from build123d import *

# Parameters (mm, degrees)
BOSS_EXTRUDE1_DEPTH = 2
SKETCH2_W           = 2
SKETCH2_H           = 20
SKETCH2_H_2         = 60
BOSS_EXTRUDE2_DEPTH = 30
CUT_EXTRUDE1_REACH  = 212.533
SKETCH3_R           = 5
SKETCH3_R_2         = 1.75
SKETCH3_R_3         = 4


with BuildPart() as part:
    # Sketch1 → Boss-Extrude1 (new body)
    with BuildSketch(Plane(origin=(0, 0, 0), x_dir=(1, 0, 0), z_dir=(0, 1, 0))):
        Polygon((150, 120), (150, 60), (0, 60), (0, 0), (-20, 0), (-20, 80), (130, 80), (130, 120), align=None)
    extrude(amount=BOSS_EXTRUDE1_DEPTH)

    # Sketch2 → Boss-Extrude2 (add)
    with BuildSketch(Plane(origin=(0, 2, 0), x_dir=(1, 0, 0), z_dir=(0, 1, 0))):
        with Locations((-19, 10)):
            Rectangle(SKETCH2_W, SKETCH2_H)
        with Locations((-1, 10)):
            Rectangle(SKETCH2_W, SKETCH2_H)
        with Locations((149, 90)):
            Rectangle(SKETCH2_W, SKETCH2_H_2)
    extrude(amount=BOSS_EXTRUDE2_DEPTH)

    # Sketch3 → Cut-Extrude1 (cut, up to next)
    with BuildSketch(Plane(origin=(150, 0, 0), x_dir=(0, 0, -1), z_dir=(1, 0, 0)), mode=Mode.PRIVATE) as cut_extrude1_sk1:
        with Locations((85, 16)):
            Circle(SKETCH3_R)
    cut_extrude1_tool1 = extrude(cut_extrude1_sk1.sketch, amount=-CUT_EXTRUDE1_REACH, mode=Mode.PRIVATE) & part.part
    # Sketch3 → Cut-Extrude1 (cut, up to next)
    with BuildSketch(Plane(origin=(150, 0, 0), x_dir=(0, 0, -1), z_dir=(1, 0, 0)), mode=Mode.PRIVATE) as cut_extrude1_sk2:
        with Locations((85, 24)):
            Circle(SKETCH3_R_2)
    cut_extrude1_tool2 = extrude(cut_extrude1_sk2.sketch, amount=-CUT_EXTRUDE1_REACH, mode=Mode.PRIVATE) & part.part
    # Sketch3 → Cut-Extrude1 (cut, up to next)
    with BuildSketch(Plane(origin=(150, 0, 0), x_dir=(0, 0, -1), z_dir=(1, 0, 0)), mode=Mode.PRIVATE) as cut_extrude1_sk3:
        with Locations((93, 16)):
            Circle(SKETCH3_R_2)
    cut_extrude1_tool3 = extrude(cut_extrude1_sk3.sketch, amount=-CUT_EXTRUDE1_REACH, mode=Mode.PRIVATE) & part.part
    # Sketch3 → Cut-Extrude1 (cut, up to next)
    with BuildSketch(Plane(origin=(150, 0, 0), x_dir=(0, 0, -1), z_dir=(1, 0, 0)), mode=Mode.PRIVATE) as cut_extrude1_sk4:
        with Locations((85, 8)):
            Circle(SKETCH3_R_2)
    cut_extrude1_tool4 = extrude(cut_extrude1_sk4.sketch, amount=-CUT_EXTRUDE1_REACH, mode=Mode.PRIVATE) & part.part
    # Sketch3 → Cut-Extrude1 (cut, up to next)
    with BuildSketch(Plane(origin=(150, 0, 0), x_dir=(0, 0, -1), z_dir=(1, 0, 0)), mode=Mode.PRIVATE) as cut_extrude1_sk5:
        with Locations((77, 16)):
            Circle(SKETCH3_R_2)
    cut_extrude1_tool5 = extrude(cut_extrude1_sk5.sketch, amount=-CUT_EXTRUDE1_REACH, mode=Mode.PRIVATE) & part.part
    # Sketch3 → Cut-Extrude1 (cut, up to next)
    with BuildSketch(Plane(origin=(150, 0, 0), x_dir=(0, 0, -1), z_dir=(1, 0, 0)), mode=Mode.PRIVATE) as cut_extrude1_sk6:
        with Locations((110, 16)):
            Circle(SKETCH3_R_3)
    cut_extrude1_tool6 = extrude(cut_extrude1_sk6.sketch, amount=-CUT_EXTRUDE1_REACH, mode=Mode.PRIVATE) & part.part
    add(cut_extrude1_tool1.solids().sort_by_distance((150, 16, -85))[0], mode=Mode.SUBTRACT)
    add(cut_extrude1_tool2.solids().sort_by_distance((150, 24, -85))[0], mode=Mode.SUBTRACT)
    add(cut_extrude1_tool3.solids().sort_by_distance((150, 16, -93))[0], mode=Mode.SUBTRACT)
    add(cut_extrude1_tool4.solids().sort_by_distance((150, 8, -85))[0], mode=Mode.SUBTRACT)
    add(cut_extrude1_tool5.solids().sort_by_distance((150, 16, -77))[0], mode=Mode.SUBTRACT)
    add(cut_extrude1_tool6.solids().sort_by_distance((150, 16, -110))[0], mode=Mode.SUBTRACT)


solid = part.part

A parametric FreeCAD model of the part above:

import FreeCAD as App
import Part
import Sketcher

V = App.Vector
Q = App.Units.Quantity

doc = App.newDocument("Part")
body = doc.addObject("PartDesign::Body", "Body")

# Sketch on XZ plane
sketch1 = body.newObject("Sketcher::SketchObject", "Sketch")
sketch1.AttachmentSupport = (doc.getObject("XZ_Plane"), [""])
sketch1.MapMode = "FlatFace"
sketch1.addGeometry([
    Part.LineSegment(V(150, -60, 0), V(150, -120, 0)),  # 0
    Part.LineSegment(V(150, -120, 0), V(130, -120, 0)),  # 1
    Part.LineSegment(V(130, -120, 0), V(130, -80, 0)),  # 2
    Part.LineSegment(V(130, -80, 0), V(-20, -80, 0)),  # 3
    Part.LineSegment(V(-20, -80, 0), V(-20, 0, 0)),  # 4
    Part.LineSegment(V(-20, 0, 0), V(0, 0, 0)),  # 5
    Part.LineSegment(V(0, 0, 0), V(0, -60, 0)),  # 6
    Part.LineSegment(V(0, -60, 0), V(150, -60, 0)),  # 7
], False)
sketch1.addConstraint([
    Sketcher.Constraint("Coincident", 0, 2, 1, 1),
    Sketcher.Constraint("Coincident", 1, 2, 2, 1),
    Sketcher.Constraint("Coincident", 2, 2, 3, 1),
    Sketcher.Constraint("Coincident", 3, 2, 4, 1),
    Sketcher.Constraint("Coincident", 4, 2, 5, 1),
    Sketcher.Constraint("Coincident", 5, 2, 6, 1),
    Sketcher.Constraint("Coincident", 6, 2, 7, 1),
    Sketcher.Constraint("Coincident", 7, 2, 0, 1),
    Sketcher.Constraint("Vertical", 0),
    Sketcher.Constraint("Horizontal", 1),
    Sketcher.Constraint("Vertical", 2),
    Sketcher.Constraint("Horizontal", 3),
    Sketcher.Constraint("Vertical", 4),
    Sketcher.Constraint("Horizontal", 5),
    Sketcher.Constraint("Vertical", 6),
    Sketcher.Constraint("Horizontal", 7),
    Sketcher.Constraint("Coincident", 5, 2, -1, 1),
    Sketcher.Constraint("Equal", 1, 5),
    Sketcher.Constraint("Equal", 0, 6),
    Sketcher.Constraint("DistanceX", 1, 2, 1, 1, Q("20 mm")),
    Sketcher.Constraint("DistanceX", 3, 2, 3, 1, Q("150 mm")),
    Sketcher.Constraint("DistanceY", 0, 2, 0, 1, Q("60 mm")),
    Sketcher.Constraint("DistanceY", 2, 1, 2, 2, Q("40 mm")),
])
pad1 = body.newObject("PartDesign::Pad", "Pad")
pad1.Profile = sketch1
pad1.Length = 2
pad1.Reversed = True

# Sketch on XZ plane
sketch2 = body.newObject("Sketcher::SketchObject", "Sketch001")
sketch2.AttachmentSupport = (doc.getObject("XZ_Plane"), [""])
sketch2.MapMode = "FlatFace"
sketch2.AttachmentOffset = App.Placement(V(0, 0, -2), App.Rotation())
sketch2.addGeometry([
    Part.LineSegment(V(-20, -20, 0), V(-20, 0, 0)),  # 0
    Part.LineSegment(V(-20, 0, 0), V(-18, 0, 0)),  # 1
    Part.LineSegment(V(-18, 0, 0), V(-18, -20, 0)),  # 2
    Part.LineSegment(V(-18, -20, 0), V(-20, -20, 0)),  # 3
    Part.LineSegment(V(-2, -20, 0), V(-2, 0, 0)),  # 4
    Part.LineSegment(V(-2, 0, 0), V(0, 0, 0)),  # 5
    Part.LineSegment(V(0, 0, 0), V(0, -20, 0)),  # 6
    Part.LineSegment(V(0, -20, 0), V(-2, -20, 0)),  # 7
    Part.LineSegment(V(148, -120, 0), V(148, -60, 0)),  # 8
    Part.LineSegment(V(148, -60, 0), V(150, -60, 0)),  # 9
    Part.LineSegment(V(150, -60, 0), V(150, -120, 0)),  # 10
    Part.LineSegment(V(150, -120, 0), V(148, -120, 0)),  # 11
], False)
sketch2.addConstraint([
    Sketcher.Constraint("Coincident", 0, 2, 1, 1),
    Sketcher.Constraint("Coincident", 1, 2, 2, 1),
    Sketcher.Constraint("Coincident", 2, 2, 3, 1),
    Sketcher.Constraint("Coincident", 3, 2, 0, 1),
    Sketcher.Constraint("Coincident", 4, 2, 5, 1),
    Sketcher.Constraint("Coincident", 5, 2, 6, 1),
    Sketcher.Constraint("Coincident", 6, 2, 7, 1),
    Sketcher.Constraint("Coincident", 7, 2, 4, 1),
    Sketcher.Constraint("Coincident", 8, 2, 9, 1),
    Sketcher.Constraint("Coincident", 9, 2, 10, 1),
    Sketcher.Constraint("Coincident", 10, 2, 11, 1),
    Sketcher.Constraint("Coincident", 11, 2, 8, 1),
    Sketcher.Constraint("Vertical", 0),
    Sketcher.Constraint("Horizontal", 1),
    Sketcher.Constraint("Vertical", 2),
    Sketcher.Constraint("Horizontal", 3),
    Sketcher.Constraint("Vertical", 4),
    Sketcher.Constraint("Horizontal", 5),
    Sketcher.Constraint("Vertical", 6),
    Sketcher.Constraint("Horizontal", 7),
    Sketcher.Constraint("Vertical", 8),
    Sketcher.Constraint("Horizontal", 9),
    Sketcher.Constraint("Vertical", 10),
    Sketcher.Constraint("Horizontal", 11),
    Sketcher.Constraint("Coincident", 5, 2, -1, 1),
    Sketcher.Constraint("PointOnObject", 0, 2, -1),
    Sketcher.Constraint("Horizontal", 3, 2, 6, 2),
    Sketcher.Constraint("Equal", 3, 5),
    Sketcher.Constraint("Equal", 7, 9),
    Sketcher.Constraint("DistanceX", 1, 1, 1, 2, Q("2 mm")),
    Sketcher.Constraint("DistanceY", 0, 1, 0, 2, Q("20 mm")),
    Sketcher.Constraint("DistanceY", 8, 1, 8, 2, Q("60 mm")),
    Sketcher.Constraint("DistanceX", 0, 2, -1, 1, Q("20 mm")),
    Sketcher.Constraint("DistanceX", -1, 1, 8, 2, Q("148 mm")),
    Sketcher.Constraint("DistanceY", 8, 2, -1, 1, Q("60 mm")),
])
pad2 = body.newObject("PartDesign::Pad", "Pad001")
pad2.Profile = sketch2
pad2.Length = 30
pad2.Reversed = True

# Sketch on YZ plane
sketch3 = body.newObject("Sketcher::SketchObject", "Sketch002")
sketch3.AttachmentSupport = (doc.getObject("YZ_Plane"), [""])
sketch3.MapMode = "FlatFace"
sketch3.AttachmentOffset = App.Placement(V(0, 0, 150), App.Rotation())
sketch3.addGeometry(Part.Circle(V(16, -85, 0), V(0, 0, 1), 5), False)
sketch3.addConstraint([
    Sketcher.Constraint("Diameter", 0, Q("10 mm")),
    Sketcher.Constraint("DistanceX", -1, 1, 0, 3, Q("16 mm")),
    Sketcher.Constraint("DistanceY", 0, 3, -1, 1, Q("85 mm")),
])
pocket1 = body.newObject("PartDesign::Pocket", "Pocket")
pocket1.Profile = sketch3
pocket1.Type = "UpToFirst"

# Sketch on YZ plane
sketch4 = body.newObject("Sketcher::SketchObject", "Sketch003")
sketch4.AttachmentSupport = (doc.getObject("YZ_Plane"), [""])
sketch4.MapMode = "FlatFace"
sketch4.AttachmentOffset = App.Placement(V(0, 0, 150), App.Rotation())
sketch4.addGeometry(Part.Circle(V(24, -85, 0), V(0, 0, 1), 1.75), False)
sketch4.addConstraint([
    Sketcher.Constraint("Diameter", 0, Q("3.5 mm")),
    Sketcher.Constraint("DistanceX", -1, 1, 0, 3, Q("24 mm")),
    Sketcher.Constraint("DistanceY", 0, 3, -1, 1, Q("85 mm")),
])
pocket2 = body.newObject("PartDesign::Pocket", "Pocket001")
pocket2.Profile = sketch4
pocket2.Type = "UpToFirst"

# Sketch on YZ plane
sketch5 = body.newObject("Sketcher::SketchObject", "Sketch004")
sketch5.AttachmentSupport = (doc.getObject("YZ_Plane"), [""])
sketch5.MapMode = "FlatFace"
sketch5.AttachmentOffset = App.Placement(V(0, 0, 150), App.Rotation())
sketch5.addGeometry(Part.Circle(V(16, -93, 0), V(0, 0, 1), 1.75), False)
sketch5.addConstraint([
    Sketcher.Constraint("Diameter", 0, Q("3.5 mm")),
    Sketcher.Constraint("DistanceX", -1, 1, 0, 3, Q("16 mm")),
    Sketcher.Constraint("DistanceY", 0, 3, -1, 1, Q("93 mm")),
])
pocket3 = body.newObject("PartDesign::Pocket", "Pocket002")
pocket3.Profile = sketch5
pocket3.Type = "UpToFirst"

# Sketch on YZ plane
sketch6 = body.newObject("Sketcher::SketchObject", "Sketch005")
sketch6.AttachmentSupport = (doc.getObject("YZ_Plane"), [""])
sketch6.MapMode = "FlatFace"
sketch6.AttachmentOffset = App.Placement(V(0, 0, 150), App.Rotation())
sketch6.addGeometry(Part.Circle(V(8, -85, 0), V(0, 0, 1), 1.75), False)
sketch6.addConstraint([
    Sketcher.Constraint("Diameter", 0, Q("3.5 mm")),
    Sketcher.Constraint("DistanceX", -1, 1, 0, 3, Q("8 mm")),
    Sketcher.Constraint("DistanceY", 0, 3, -1, 1, Q("85 mm")),
])
pocket4 = body.newObject("PartDesign::Pocket", "Pocket003")
pocket4.Profile = sketch6
pocket4.Type = "UpToFirst"

# Sketch on YZ plane
sketch7 = body.newObject("Sketcher::SketchObject", "Sketch006")
sketch7.AttachmentSupport = (doc.getObject("YZ_Plane"), [""])
sketch7.MapMode = "FlatFace"
sketch7.AttachmentOffset = App.Placement(V(0, 0, 150), App.Rotation())
sketch7.addGeometry(Part.Circle(V(16, -77, 0), V(0, 0, 1), 1.75), False)
sketch7.addConstraint([
    Sketcher.Constraint("Diameter", 0, Q("3.5 mm")),
    Sketcher.Constraint("DistanceX", -1, 1, 0, 3, Q("16 mm")),
    Sketcher.Constraint("DistanceY", 0, 3, -1, 1, Q("77 mm")),
])
pocket5 = body.newObject("PartDesign::Pocket", "Pocket004")
pocket5.Profile = sketch7
pocket5.Type = "UpToFirst"

# Sketch on YZ plane
sketch8 = body.newObject("Sketcher::SketchObject", "Sketch007")
sketch8.AttachmentSupport = (doc.getObject("YZ_Plane"), [""])
sketch8.MapMode = "FlatFace"
sketch8.AttachmentOffset = App.Placement(V(0, 0, 150), App.Rotation())
sketch8.addGeometry(Part.Circle(V(16, -110, 0), V(0, 0, 1), 4), False)
sketch8.addConstraint([
    Sketcher.Constraint("Diameter", 0, Q("8 mm")),
    Sketcher.Constraint("DistanceX", -1, 1, 0, 3, Q("16 mm")),
    Sketcher.Constraint("DistanceY", 0, 3, -1, 1, Q("110 mm")),
])
pocket6 = body.newObject("PartDesign::Pocket", "Pocket005")
pocket6.Profile = sketch8
pocket6.Type = "UpToFirst"

doc.recompute()
